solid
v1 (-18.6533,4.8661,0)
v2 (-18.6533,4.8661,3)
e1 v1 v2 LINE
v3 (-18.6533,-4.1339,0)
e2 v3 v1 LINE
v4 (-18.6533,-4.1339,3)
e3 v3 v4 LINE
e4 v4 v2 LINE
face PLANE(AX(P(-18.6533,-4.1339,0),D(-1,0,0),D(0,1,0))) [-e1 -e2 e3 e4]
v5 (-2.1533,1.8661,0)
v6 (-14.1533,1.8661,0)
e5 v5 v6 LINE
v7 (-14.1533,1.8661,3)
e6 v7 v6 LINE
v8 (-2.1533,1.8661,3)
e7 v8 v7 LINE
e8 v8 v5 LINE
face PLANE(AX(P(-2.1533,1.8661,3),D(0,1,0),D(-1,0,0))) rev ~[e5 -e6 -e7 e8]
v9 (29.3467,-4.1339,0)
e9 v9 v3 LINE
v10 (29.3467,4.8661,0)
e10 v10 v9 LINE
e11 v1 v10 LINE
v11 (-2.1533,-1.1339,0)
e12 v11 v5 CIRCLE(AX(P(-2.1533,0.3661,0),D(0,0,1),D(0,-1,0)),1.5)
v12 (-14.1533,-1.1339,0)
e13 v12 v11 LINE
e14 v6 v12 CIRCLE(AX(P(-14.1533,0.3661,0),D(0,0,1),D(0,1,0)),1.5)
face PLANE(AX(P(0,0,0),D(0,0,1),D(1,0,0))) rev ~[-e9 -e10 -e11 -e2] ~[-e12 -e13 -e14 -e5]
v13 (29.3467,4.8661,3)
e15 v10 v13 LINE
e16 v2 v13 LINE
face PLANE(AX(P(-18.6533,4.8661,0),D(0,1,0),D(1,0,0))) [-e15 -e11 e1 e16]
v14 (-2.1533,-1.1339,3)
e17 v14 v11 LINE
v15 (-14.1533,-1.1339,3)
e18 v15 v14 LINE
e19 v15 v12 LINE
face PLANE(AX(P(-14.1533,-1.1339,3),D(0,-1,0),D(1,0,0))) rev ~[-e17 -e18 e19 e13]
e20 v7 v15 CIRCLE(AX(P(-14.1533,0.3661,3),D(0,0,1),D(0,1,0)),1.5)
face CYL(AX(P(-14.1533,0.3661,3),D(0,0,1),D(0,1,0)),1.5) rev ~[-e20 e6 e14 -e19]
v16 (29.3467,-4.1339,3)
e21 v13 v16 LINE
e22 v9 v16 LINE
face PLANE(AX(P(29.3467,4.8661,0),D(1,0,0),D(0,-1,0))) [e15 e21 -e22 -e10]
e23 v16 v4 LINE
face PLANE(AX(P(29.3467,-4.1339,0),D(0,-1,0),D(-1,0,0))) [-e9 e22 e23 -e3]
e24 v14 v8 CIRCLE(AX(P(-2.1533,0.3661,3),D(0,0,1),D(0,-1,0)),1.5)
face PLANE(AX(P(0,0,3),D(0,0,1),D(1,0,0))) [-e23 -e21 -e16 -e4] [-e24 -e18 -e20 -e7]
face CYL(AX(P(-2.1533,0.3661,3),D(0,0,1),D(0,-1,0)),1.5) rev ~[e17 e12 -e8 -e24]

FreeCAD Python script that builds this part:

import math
import FreeCAD as App
import Part
import Sketcher
Q = App.Units.Quantity

doc = App.newDocument("Part")
body = doc.addObject("PartDesign::Body", "Body")

# Sketch on XY plane
sketch1 = doc.addObject("Sketcher::SketchObject", "Sketch")
body.addObject(sketch1)
sketch1.AttachmentSupport = (doc.XY_Plane, [""])
sketch1.MapMode = "FlatFace"
sketch1.addGeometry([
    Part.LineSegment(App.Vector(29, 5, 0), App.Vector(-19, 5, 0)),
    Part.LineSegment(App.Vector(-19, 5, 0), App.Vector(-19, -4, 0)),
    Part.LineSegment(App.Vector(-19, -4, 0), App.Vector(29, -4, 0)),
    Part.LineSegment(App.Vector(29, -4, 0), App.Vector(29, 5, 0)),
], False)
sketch1.addConstraint([
    Sketcher.Constraint("Coincident", 0, 2, 1, 1),
    Sketcher.Constraint("Coincident", 1, 2, 2, 1),
    Sketcher.Constraint("Coincident", 2, 2, 3, 1),
    Sketcher.Constraint("Coincident", 3, 2, 0, 1),
    Sketcher.Constraint("Horizontal", 0),
    Sketcher.Constraint("Vertical", 1),
    Sketcher.Constraint("Horizontal", 2),
    Sketcher.Constraint("Vertical", 3),
    Sketcher.Constraint("DistanceX", 0, 2, 0, 1, Q("48 mm")),
    Sketcher.Constraint("DistanceY", 1, 2, 1, 1, Q("9 mm")),
    Sketcher.Constraint("DistanceY", -1, 1, 0, 2, Q("4.866 mm")),
    Sketcher.Constraint("DistanceX", 0, 2, -1, 1, Q("18.6533 mm")),
])
pad1 = doc.addObject("PartDesign::Pad", "Pad")
body.addObject(pad1)
pad1.Profile = sketch1
pad1.Length = 3

# Sketch on XY plane
sketch2 = doc.addObject("Sketcher::SketchObject", "Sketch001")
body.addObject(sketch2)
sketch2.AttachmentSupport = (doc.XY_Plane, [""])
sketch2.MapMode = "FlatFace"
sketch2.AttachmentOffset = App.Placement(App.Vector(0, 0, 3), App.Rotation())
sketch2.addGeometry([
    Part.ArcOfCircle(Part.Circle(App.Vector(-14.2, 0.4, 0), App.Vector(0, 0, 1), 1.5), math.radians(90), math.radians(270)),
    Part.LineSegment(App.Vector(-14.2, -1.1, 0), App.Vector(-2.2, -1.1, 0)),
    Part.ArcOfCircle(Part.Circle(App.Vector(-2.2, 0.4, 0), App.Vector(0, 0, 1), 1.5), math.radians(-90), math.radians(90)),
    Part.LineSegment(App.Vector(-2.2, 1.9, 0), App.Vector(-14.2, 1.9, 0)),
], False)
sketch2.addConstraint([
    Sketcher.Constraint("Tangent", 0, 2, 1, 1),
    Sketcher.Constraint("Tangent", 1, 2, 2, 1),
    Sketcher.Constraint("Tangent", 2, 2, 3, 1),
    Sketcher.Constraint("Tangent", 3, 2, 0, 1),
    Sketcher.Constraint("Horizontal", 1),
    Sketcher.Constraint("Horizontal", 3),
    Sketcher.Constraint("Radius", 0, Q("1.5 mm")),
    Sketcher.Constraint("DistanceX", 1, 1, 1, 2, Q("12 mm")),
    Sketcher.Constraint("DistanceY", -1, 1, 0, 3, Q("0.366 mm")),
    Sketcher.Constraint("DistanceX", 0, 3, -1, 1, Q("14.1533 mm")),
])
pocket1 = doc.addObject("PartDesign::Pocket", "Pocket")
body.addObject(pocket1)
pocket1.Profile = sketch2
pocket1.Length = 3

doc.recompute()
